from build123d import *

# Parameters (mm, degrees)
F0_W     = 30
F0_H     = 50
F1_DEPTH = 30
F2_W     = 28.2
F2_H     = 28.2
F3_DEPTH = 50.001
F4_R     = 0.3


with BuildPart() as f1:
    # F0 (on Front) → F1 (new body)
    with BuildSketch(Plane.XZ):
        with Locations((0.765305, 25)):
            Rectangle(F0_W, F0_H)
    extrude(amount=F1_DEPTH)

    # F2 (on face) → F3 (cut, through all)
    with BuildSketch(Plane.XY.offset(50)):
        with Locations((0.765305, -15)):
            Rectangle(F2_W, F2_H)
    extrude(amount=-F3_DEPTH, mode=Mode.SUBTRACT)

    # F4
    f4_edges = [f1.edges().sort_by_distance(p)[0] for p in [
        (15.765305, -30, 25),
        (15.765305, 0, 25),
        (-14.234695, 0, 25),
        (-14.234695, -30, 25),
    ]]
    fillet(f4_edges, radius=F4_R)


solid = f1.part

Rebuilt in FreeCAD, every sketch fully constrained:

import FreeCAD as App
import Part
import Sketcher


def edges_at(feature, points):
    """Names of the edges that pass closest to the given points."""
    edges = feature.Shape.Edges
    near = lambda p: min(range(len(edges)), key=lambda i: edges[i].distToShape(Part.Vertex(*p))[0])
    return sorted({f"Edge{near(p) + 1}" for p in points})

doc = App.newDocument("Part")
body = doc.addObject("PartDesign::Body", "Body")

# Sketch on XZ plane
sketch1 = body.newObject("Sketcher::SketchObject", "Sketch")
sketch1.AttachmentSupport = (doc.getObject("XZ_Plane"), [""])
sketch1.MapMode = "FlatFace"
sketch1.addGeometry(Part.LineSegment(App.Vector(-14, 50, 0), App.Vector(-14, 0, 0)), False)
sketch1.addGeometry(Part.LineSegment(App.Vector(-14, 0, 0), App.Vector(16, 0, 0)), False)
sketch1.addGeometry(Part.LineSegment(App.Vector(16, 0, 0), App.Vector(16, 50, 0)), False)
sketch1.addGeometry(Part.LineSegment(App.Vector(16, 50, 0), App.Vector(-14, 50, 0)), False)
sketch1.addConstraint(Sketcher.Constraint("Coincident", 0, 2, 1, 1))
sketch1.addConstraint(Sketcher.Constraint("Coincident", 1, 2, 2, 1))
sketch1.addConstraint(Sketcher.Constraint("Coincident", 2, 2, 3, 1))
sketch1.addConstraint(Sketcher.Constraint("Coincident", 3, 2, 0, 1))
sketch1.addConstraint(Sketcher.Constraint("Vertical", 0))
sketch1.addConstraint(Sketcher.Constraint("Horizontal", 1))
sketch1.addConstraint(Sketcher.Constraint("Vertical", 2))
sketch1.addConstraint(Sketcher.Constraint("Horizontal", 3))
sketch1.addConstraint(Sketcher.Constraint("PointOnObject", 0, 2, -1))
sketch1.addConstraint(Sketcher.Constraint("DistanceX", 1, 1, 1, 2, 30.0))
sketch1.addConstraint(Sketcher.Constraint("DistanceY", 0, 2, 0, 1, 50.0))
sketch1.addConstraint(Sketcher.Constraint("DistanceX", 0, 2, -1, 1, 14.234695))
pad1 = body.newObject("PartDesign::Pad", "Pad")
pad1.Profile = sketch1
pad1.Length = 30

# Sketch on XY plane
sketch2 = body.newObject("Sketcher::SketchObject", "Sketch001")
sketch2.AttachmentSupport = (doc.getObject("XY_Plane"), [""])
sketch2.MapMode = "FlatFace"
sketch2.AttachmentOffset = App.Placement(App.Vector(0, 0, 50), App.Rotation())
sketch2.addGeometry(Part.LineSegment(App.Vector(-13, -1, 0), App.Vector(-13, -29, 0)), False)
sketch2.addGeometry(Part.LineSegment(App.Vector(-13, -29, 0), App.Vector(15, -29, 0)), False)
sketch2.addGeometry(Part.LineSegment(App.Vector(15, -29, 0), App.Vector(15, -1, 0)), False)
sketch2.addGeometry(Part.LineSegment(App.Vector(15, -1, 0), App.Vector(-13, -1, 0)), False)
sketch2.addConstraint(Sketcher.Constraint("Coincident", 0, 2, 1, 1))
sketch2.addConstraint(Sketcher.Constraint("Coincident", 1, 2, 2, 1))
sketch2.addConstraint(Sketcher.Constraint("Coincident", 2, 2, 3, 1))
sketch2.addConstraint(Sketcher.Constraint("Coincident", 3, 2, 0, 1))
sketch2.addConstraint(Sketcher.Constraint("Vertical", 0))
sketch2.addConstraint(Sketcher.Constraint("Horizontal", 1))
sketch2.addConstraint(Sketcher.Constraint("Vertical", 2))
sketch2.addConstraint(Sketcher.Constraint("Horizontal", 3))
sketch2.addConstraint(Sketcher.Constraint("Equal", 3, 0))
sketch2.addConstraint(Sketcher.Constraint("DistanceX", 1, 1, 1, 2, 28.2))
sketch2.addConstraint(Sketcher.Constraint("DistanceY", 0, 2, -1, 1, 29.1))
sketch2.addConstraint(Sketcher.Constraint("DistanceX", 0, 2, -1, 1, 13.334695))
pocket1 = body.newObject("PartDesign::Pocket", "Pocket")
pocket1.Profile = sketch2
pocket1.Type = "ThroughAll"
doc.recompute()

fillet = body.newObject("PartDesign::Fillet", "Fillet")
fillet.Base = (pocket1, edges_at(pocket1, [
    (15.765, -30, 25),
    (15.765, 0, 25),
    (-14.235, 0, 25),
    (-14.235, -30, 25),
]))
fillet.Radius = 0.3

doc.recompute()
